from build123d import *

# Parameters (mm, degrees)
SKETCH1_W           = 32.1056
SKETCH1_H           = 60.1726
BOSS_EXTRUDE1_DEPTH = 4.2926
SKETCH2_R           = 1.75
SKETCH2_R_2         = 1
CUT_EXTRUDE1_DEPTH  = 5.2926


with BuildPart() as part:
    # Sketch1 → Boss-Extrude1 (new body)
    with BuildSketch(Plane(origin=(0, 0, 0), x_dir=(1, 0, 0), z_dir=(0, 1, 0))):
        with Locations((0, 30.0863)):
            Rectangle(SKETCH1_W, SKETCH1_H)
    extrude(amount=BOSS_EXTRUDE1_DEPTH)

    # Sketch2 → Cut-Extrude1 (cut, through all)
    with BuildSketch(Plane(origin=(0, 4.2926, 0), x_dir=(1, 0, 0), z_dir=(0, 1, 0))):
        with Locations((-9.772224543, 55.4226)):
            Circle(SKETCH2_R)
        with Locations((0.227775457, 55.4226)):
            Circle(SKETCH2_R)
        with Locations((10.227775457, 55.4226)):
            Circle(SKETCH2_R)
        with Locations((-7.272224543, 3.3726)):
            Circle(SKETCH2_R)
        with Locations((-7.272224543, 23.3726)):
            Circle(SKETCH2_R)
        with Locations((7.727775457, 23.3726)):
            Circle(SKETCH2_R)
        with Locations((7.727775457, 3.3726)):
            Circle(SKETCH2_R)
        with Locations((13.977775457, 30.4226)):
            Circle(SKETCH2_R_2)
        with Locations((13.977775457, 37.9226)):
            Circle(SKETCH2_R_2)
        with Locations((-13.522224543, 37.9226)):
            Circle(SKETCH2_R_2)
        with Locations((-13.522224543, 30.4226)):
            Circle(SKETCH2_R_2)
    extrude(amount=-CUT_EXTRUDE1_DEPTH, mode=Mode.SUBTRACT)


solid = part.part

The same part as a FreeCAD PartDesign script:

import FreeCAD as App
import Part
import Sketcher
from FreeCAD import Vector
Q = App.Units.Quantity

doc = App.newDocument("Part")
body = doc.addObject("PartDesign::Body", "Body")

sketch1 = body.newObject("Sketcher::SketchObject", "Sketch")
sketch1.AttachmentSupport = (doc.getObject("XZ_Plane"), [""])
sketch1.MapMode = "FlatFace"
sketch1.addGeometry([
    Part.LineSegment(Vector(-16, -60, 0), Vector(-16, 0, 0)),
    Part.LineSegment(Vector(-16, 0, 0), Vector(16, 0, 0)),
    Part.LineSegment(Vector(16, 0, 0), Vector(16, -60, 0)),
    Part.LineSegment(Vector(16, -60, 0), Vector(-16, -60, 0)),
], False)
sketch1.addConstraint([
    Sketcher.Constraint("Coincident", 0, 2, 1, 1),
    Sketcher.Constraint("Coincident", 1, 2, 2, 1),
    Sketcher.Constraint("Coincident", 2, 2, 3, 1),
    Sketcher.Constraint("Coincident", 3, 2, 0, 1),
    Sketcher.Constraint("Vertical", 0),
    Sketcher.Constraint("Horizontal", 1),
    Sketcher.Constraint("Vertical", 2),
    Sketcher.Constraint("Horizontal", 3),
    Sketcher.Constraint("Symmetric", 0, 2, 1, 2, -1, 1),
    Sketcher.Constraint("DistanceX", 1, 1, 1, 2, Q("1.264 in")),
    Sketcher.Constraint("DistanceY", 0, 1, 0, 2, Q("2.369 in")),
])
pad1 = body.newObject("PartDesign::Pad", "Pad")
pad1.Profile = sketch1
pad1.Length = Q("0.169 in")
pad1.Reversed = True

sketch2 = body.newObject("Sketcher::SketchObject", "Sketch001")
sketch2.AttachmentSupport = (doc.getObject("XZ_Plane"), [""])
sketch2.MapMode = "FlatFace"
sketch2.AttachmentOffset = App.Placement(Vector(0, 0, -0.169 * 25.4), App.Rotation())
sketch2.addGeometry([
    Part.Circle(Vector(-9.8, -55.4, 0), Vector(0, 0, 1), 1.8),
    Part.Circle(Vector(0.2, -55.4, 0), Vector(0, 0, 1), 1.8),
    Part.Circle(Vector(10.2, -55.4, 0), Vector(0, 0, 1), 1.8),
    Part.Circle(Vector(-7.3, -3.4, 0), Vector(0, 0, 1), 1.8),
    Part.Circle(Vector(-7.3, -23.4, 0), Vector(0, 0, 1), 1.8),
    Part.Circle(Vector(7.7, -23.4, 0), Vector(0, 0, 1), 1.8),
    Part.Circle(Vector(7.7, -3.4, 0), Vector(0, 0, 1), 1.8),
    Part.Circle(Vector(14, -30.4, 0), Vector(0, 0, 1), 1),
    Part.Circle(Vector(14, -37.9, 0), Vector(0, 0, 1), 1),
    Part.Circle(Vector(-13.5, -37.9, 0), Vector(0, 0, 1), 1),
    Part.Circle(Vector(-13.5, -30.4, 0), Vector(0, 0, 1), 1),
], False)
sketch2.addConstraint([
    Sketcher.Constraint("Equal", 0, 1),
    Sketcher.Constraint("Equal", 1, 2),
    Sketcher.Constraint("Equal", 2, 3),
    Sketcher.Constraint("Equal", 3, 4),
    Sketcher.Constraint("Equal", 4, 5),
    Sketcher.Constraint("Equal", 5, 6),
    Sketcher.Constraint("Equal", 7, 8),
    Sketcher.Constraint("Equal", 8, 9),
    Sketcher.Constraint("Equal", 9, 10),
    Sketcher.Constraint("Horizontal", 0, 3, 1, 3),
    Sketcher.Constraint("Horizontal", 1, 3, 2, 3),
    Sketcher.Constraint("Horizontal", 4, 3, 5, 3),
    Sketcher.Constraint("Horizontal", 3, 3, 6, 3),
    Sketcher.Constraint("Horizontal", 8, 3, 9, 3),
    Sketcher.Constraint("Horizontal", 7, 3, 10, 3),
    Sketcher.Constraint("Vertical", 3, 3, 4, 3),
    Sketcher.Constraint("Vertical", 5, 3, 6, 3),
    Sketcher.Constraint("Vertical", 7, 3, 8, 3),
    Sketcher.Constraint("Vertical", 9, 3, 10, 3),
    Sketcher.Constraint("Diameter", 0, Q("3.5 mm")),
    Sketcher.Constraint("Diameter", 7, Q("2 mm")),
    Sketcher.Constraint("DistanceY", 0, 3, -1, 1, Q("55.4226 mm")),
    Sketcher.Constraint("DistanceY", 3, 3, -1, 1, Q("3.3726 mm")),
    Sketcher.Constraint("DistanceY", 4, 3, -1, 1, Q("23.3726 mm")),
    Sketcher.Constraint("DistanceY", 7, 3, -1, 1, Q("30.4226 mm")),
    Sketcher.Constraint("DistanceY", 8, 3, -1, 1, Q("37.9226 mm")),
    Sketcher.Constraint("DistanceX", 0, 3, 1, 3, Q("10 mm")),
    Sketcher.Constraint("DistanceX", 1, 3, 2, 3, Q("10 mm")),
    Sketcher.Constraint("DistanceX", 0, 3, 3, 3, Q("2.5 mm")),
    Sketcher.Constraint("DistanceX", 4, 3, 5, 3, Q("15 mm")),
    Sketcher.Constraint("DistanceX", 5, 3, 7, 3, Q("6.25 mm")),
    Sketcher.Constraint("DistanceX", 9, 3, 4, 3, Q("6.25 mm")),
    Sketcher.Constraint("DistanceX", 0, 3, -1, 1, Q("9.772225 mm")),
])
pocket1 = body.newObject("PartDesign::Pocket", "Pocket")
pocket1.Profile = sketch2
pocket1.Type = "ThroughAll"
pocket1.Reversed = True

doc.recompute()
